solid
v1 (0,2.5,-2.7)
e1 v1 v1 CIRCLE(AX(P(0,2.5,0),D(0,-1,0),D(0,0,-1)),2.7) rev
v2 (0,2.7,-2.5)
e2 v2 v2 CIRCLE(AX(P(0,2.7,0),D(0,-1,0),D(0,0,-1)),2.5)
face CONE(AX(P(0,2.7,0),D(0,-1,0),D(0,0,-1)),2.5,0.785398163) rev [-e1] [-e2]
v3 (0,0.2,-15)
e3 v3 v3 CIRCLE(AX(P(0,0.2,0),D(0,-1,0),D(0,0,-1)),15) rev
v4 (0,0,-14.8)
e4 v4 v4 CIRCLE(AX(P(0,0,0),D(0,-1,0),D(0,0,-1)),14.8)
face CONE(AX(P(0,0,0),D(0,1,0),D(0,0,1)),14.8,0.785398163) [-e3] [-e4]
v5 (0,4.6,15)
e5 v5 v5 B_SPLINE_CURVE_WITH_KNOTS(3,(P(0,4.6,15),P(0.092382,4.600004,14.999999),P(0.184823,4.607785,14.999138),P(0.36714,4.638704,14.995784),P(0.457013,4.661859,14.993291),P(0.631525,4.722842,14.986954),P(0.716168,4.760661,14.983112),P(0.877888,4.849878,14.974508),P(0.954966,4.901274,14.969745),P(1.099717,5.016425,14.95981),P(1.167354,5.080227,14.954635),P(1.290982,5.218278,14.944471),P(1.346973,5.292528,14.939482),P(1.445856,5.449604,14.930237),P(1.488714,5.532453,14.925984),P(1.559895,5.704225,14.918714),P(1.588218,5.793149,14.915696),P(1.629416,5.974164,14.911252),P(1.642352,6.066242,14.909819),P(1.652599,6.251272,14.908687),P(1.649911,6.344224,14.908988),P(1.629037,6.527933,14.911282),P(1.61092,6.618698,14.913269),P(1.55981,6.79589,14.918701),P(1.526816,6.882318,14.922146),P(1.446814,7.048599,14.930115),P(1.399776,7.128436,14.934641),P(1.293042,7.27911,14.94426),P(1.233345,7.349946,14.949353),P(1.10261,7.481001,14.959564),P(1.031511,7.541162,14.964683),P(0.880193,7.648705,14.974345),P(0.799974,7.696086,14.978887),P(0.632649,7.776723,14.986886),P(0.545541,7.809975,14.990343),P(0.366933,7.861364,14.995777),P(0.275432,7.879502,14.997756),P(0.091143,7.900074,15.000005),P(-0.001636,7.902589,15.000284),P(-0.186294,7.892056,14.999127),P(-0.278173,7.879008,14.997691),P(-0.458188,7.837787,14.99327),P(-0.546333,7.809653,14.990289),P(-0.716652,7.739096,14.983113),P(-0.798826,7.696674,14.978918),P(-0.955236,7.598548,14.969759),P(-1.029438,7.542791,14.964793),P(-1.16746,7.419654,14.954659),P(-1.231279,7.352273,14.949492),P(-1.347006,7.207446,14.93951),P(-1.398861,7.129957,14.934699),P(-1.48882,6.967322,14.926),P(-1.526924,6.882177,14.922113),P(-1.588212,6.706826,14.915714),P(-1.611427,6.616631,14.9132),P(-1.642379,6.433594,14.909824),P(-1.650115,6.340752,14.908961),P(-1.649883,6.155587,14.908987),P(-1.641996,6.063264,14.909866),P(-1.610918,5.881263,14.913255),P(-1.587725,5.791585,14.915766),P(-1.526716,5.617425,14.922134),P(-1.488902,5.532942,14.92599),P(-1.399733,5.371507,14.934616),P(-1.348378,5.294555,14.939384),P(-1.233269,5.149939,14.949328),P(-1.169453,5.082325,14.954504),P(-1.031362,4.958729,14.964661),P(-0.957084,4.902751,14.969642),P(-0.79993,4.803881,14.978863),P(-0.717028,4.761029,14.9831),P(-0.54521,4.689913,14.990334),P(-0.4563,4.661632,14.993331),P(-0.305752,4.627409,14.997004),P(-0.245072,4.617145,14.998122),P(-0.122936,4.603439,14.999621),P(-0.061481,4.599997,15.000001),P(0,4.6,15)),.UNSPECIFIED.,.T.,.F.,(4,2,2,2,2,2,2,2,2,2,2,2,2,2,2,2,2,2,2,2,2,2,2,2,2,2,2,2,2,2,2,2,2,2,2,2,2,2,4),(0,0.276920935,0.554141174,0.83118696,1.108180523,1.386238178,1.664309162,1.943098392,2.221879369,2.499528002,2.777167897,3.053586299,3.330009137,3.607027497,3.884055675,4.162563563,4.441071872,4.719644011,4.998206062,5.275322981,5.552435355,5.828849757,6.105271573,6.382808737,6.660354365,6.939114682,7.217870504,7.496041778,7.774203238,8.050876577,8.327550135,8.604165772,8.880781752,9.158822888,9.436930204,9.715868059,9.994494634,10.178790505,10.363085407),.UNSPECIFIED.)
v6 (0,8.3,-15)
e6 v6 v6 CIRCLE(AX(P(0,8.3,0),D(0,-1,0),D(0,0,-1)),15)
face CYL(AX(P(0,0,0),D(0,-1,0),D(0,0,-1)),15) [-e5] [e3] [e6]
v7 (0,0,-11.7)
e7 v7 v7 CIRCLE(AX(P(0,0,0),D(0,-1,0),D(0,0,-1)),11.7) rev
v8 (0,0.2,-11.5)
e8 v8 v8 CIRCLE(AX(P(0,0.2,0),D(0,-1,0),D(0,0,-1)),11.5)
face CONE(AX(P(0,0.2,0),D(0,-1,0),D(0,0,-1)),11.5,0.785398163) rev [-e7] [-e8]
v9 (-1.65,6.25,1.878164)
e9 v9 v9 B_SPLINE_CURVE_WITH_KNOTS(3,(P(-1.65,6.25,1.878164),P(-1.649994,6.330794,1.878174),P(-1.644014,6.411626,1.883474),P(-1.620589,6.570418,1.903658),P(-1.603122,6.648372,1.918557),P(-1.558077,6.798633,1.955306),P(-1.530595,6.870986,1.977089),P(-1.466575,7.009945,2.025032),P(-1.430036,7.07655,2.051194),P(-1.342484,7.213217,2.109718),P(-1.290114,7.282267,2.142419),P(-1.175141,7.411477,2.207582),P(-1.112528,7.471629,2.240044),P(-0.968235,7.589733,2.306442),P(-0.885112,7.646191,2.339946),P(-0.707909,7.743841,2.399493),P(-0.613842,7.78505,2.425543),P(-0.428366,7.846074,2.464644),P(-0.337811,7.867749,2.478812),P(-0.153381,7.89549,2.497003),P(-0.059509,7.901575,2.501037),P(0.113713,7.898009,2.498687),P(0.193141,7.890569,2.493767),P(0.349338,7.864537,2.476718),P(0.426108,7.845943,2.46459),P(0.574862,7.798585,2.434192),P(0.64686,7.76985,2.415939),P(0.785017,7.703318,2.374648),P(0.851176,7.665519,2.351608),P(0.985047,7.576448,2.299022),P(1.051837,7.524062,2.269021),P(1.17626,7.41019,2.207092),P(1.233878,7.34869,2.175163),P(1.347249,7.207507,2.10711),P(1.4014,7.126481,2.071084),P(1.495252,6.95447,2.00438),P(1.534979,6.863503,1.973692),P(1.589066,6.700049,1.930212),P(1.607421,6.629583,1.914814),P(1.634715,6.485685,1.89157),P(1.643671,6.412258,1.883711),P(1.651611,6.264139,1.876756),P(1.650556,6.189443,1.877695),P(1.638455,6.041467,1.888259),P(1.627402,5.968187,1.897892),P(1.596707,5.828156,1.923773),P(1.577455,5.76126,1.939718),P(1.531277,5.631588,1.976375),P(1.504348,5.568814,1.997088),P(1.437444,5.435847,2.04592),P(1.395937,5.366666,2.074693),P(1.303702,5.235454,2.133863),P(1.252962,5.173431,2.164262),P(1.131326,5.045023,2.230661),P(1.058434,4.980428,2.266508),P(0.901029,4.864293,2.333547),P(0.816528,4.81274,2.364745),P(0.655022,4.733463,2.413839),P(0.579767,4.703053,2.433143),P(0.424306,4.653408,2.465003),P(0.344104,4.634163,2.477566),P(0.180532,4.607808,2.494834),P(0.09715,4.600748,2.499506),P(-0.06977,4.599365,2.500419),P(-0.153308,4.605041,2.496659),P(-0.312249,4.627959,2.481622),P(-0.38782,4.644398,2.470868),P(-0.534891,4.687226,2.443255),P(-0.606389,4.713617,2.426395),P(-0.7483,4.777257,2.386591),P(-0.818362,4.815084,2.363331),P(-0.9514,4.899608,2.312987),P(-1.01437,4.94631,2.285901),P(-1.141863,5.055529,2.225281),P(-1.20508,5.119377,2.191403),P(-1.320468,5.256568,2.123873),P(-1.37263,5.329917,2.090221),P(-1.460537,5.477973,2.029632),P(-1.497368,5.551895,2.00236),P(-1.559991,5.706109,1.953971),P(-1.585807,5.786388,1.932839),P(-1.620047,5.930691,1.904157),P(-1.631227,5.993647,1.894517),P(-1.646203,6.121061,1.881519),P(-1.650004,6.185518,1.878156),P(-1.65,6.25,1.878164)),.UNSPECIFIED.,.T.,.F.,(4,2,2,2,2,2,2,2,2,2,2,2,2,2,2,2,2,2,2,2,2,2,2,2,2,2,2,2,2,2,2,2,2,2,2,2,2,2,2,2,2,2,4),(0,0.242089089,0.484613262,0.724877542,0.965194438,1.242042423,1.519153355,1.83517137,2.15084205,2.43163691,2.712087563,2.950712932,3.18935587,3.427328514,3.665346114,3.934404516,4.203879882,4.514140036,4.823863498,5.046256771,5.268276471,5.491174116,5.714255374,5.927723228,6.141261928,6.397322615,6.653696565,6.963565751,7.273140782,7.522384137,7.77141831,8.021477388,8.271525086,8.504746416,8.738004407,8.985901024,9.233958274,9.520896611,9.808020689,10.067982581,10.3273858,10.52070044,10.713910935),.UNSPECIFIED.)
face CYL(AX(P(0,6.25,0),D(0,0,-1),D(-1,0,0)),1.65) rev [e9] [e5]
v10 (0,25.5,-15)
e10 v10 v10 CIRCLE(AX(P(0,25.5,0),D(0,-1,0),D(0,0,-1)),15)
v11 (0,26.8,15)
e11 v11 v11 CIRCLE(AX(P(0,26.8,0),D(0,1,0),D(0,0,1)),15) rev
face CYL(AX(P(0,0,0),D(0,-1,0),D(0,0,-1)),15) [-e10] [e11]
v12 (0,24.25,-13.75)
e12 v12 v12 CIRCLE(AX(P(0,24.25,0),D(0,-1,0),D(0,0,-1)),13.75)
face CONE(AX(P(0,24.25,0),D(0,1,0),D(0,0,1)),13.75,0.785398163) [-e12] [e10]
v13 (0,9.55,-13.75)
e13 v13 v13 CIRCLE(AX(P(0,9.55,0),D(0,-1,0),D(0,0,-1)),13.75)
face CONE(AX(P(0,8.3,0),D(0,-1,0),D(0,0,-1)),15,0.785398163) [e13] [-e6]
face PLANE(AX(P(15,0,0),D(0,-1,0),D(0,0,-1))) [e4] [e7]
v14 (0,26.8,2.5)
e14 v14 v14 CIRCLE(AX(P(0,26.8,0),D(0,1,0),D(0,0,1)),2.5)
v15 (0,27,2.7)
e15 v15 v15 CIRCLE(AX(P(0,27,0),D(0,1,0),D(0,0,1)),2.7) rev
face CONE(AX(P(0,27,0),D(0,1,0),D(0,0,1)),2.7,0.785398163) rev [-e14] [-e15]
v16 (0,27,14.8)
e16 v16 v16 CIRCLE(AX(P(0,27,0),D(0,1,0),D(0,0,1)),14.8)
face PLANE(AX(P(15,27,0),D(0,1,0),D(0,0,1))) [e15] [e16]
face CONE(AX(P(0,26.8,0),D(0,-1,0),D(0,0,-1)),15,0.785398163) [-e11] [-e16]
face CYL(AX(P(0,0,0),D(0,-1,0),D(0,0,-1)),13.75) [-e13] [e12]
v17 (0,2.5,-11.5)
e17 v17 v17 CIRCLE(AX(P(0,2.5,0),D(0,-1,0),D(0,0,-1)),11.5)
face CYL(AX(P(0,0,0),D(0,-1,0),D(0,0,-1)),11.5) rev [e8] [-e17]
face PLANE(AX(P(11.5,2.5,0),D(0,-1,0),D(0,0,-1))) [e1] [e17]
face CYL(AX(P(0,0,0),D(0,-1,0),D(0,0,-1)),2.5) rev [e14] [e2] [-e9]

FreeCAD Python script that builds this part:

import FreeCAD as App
import Part
import Sketcher
from FreeCAD import Vector
Q = App.Units.Quantity


def edges_at(feature, points):
    """Names of the edges that pass closest to the given points."""
    edges = feature.Shape.Edges
    near = lambda p: min(range(len(edges)), key=lambda i: edges[i].distToShape(Part.Vertex(*p))[0])
    return sorted({f"Edge{near(p) + 1}" for p in points})

doc = App.newDocument("Part")
body = doc.addObject("PartDesign::Body", "Body")

sketch1 = doc.addObject("Sketcher::SketchObject", "Sketch")
body.addObject(sketch1)
sketch1.AttachmentSupport = (doc.XY_Plane, [""])
sketch1.MapMode = "FlatFace"
sketch1.addGeometry(Part.LineSegment(Vector(13.75, 9.55, 0), Vector(13.75, 24.25, 0)), False)
sketch1.addGeometry(Part.LineSegment(Vector(13.75, 24.25, 0), Vector(15, 25.5, 0)), False)
sketch1.addGeometry(Part.LineSegment(Vector(15, 25.5, 0), Vector(15, 27, 0)), False)
sketch1.addGeometry(Part.LineSegment(Vector(15, 27, 0), Vector(2.5, 27, 0)), False)
sketch1.addGeometry(Part.LineSegment(Vector(2.5, 27, 0), Vector(2.5, 2.5, 0)), False)
sketch1.addGeometry(Part.LineSegment(Vector(2.5, 2.5, 0), Vector(11.5, 2.5, 0)), False)
sketch1.addGeometry(Part.LineSegment(Vector(11.5, 2.5, 0), Vector(11.5, 0, 0)), False)
sketch1.addGeometry(Part.LineSegment(Vector(11.5, 0, 0), Vector(15, 0, 0)), False)
sketch1.addGeometry(Part.LineSegment(Vector(15, 0, 0), Vector(15, 8.3, 0)), False)
sketch1.addGeometry(Part.LineSegment(Vector(15, 8.3, 0), Vector(13.75, 9.55, 0)), False)
sketch1.addConstraint(Sketcher.Constraint("Coincident", 0, 2, 1, 1))
sketch1.addConstraint(Sketcher.Constraint("Coincident", 1, 2, 2, 1))
sketch1.addConstraint(Sketcher.Constraint("Coincident", 2, 2, 3, 1))
sketch1.addConstraint(Sketcher.Constraint("Coincident", 3, 2, 4, 1))
sketch1.addConstraint(Sketcher.Constraint("Coincident", 4, 2, 5, 1))
sketch1.addConstraint(Sketcher.Constraint("Coincident", 5, 2, 6, 1))
sketch1.addConstraint(Sketcher.Constraint("Coincident", 6, 2, 7, 1))
sketch1.addConstraint(Sketcher.Constraint("Coincident", 7, 2, 8, 1))
sketch1.addConstraint(Sketcher.Constraint("Coincident", 8, 2, 9, 1))
sketch1.addConstraint(Sketcher.Constraint("Coincident", 9, 2, 0, 1))
sketch1.addConstraint(Sketcher.Constraint("Vertical", 0))
sketch1.addConstraint(Sketcher.Constraint("Vertical", 2))
sketch1.addConstraint(Sketcher.Constraint("Horizontal", 3))
sketch1.addConstraint(Sketcher.Constraint("Vertical", 4))
sketch1.addConstraint(Sketcher.Constraint("Horizontal", 5))
sketch1.addConstraint(Sketcher.Constraint("Vertical", 6))
sketch1.addConstraint(Sketcher.Constraint("Horizontal", 7))
sketch1.addConstraint(Sketcher.Constraint("Vertical", 8))
sketch1.addConstraint(Sketcher.Constraint("PointOnObject", 6, 2, -1))
sketch1.addConstraint(Sketcher.Constraint("Perpendicular", 1, 9))
sketch1.addConstraint(Sketcher.Constraint("Vertical", 2, 2, 7, 2))
sketch1.addConstraint(Sketcher.Constraint("Equal", 1, 9))
sketch1.addConstraint(Sketcher.Constraint("DistanceX", 5, 1, 5, 2, Q("9 mm")))
sketch1.addConstraint(Sketcher.Constraint("DistanceX", 3, 2, 3, 1, Q("12.5 mm")))
sketch1.addConstraint(Sketcher.Constraint("DistanceY", 0, 1, 0, 2, Q("14.7 mm")))
sketch1.addConstraint(Sketcher.Constraint("DistanceY", 2, 1, 2, 2, Q("1.5 mm")))
sketch1.addConstraint(Sketcher.Constraint("DistanceY", 4, 2, 4, 1, Q("24.5 mm")))
sketch1.addConstraint(Sketcher.Constraint("DistanceY", 6, 2, 6, 1, Q("2.5 mm")))
sketch1.addConstraint(Sketcher.Constraint("DistanceY", 8, 1, 8, 2, Q("8.3 mm")))
sketch1.addConstraint(Sketcher.Constraint("DistanceX", -1, 1, 1, 2, Q("15 mm")))
revolution = doc.addObject("PartDesign::Revolution", "Revolution")
body.addObject(revolution)
revolution.Profile = sketch1
revolution.ReferenceAxis = (sketch1, ["V_Axis"])
revolution.Angle = 360

sketch2 = doc.addObject("Sketcher::SketchObject", "Sketch001")
body.addObject(sketch2)
sketch2.AttachmentSupport = (doc.YZ_Plane, [""])
sketch2.MapMode = "FlatFace"
sketch2.addGeometry(Part.LineSegment(Vector(6.25, 15, 0), Vector(6.25, 0, 0)), False)
sketch2.addGeometry(Part.LineSegment(Vector(6.25, 0, 0), Vector(7.9, 0, 0)), False)
sketch2.addGeometry(Part.LineSegment(Vector(7.9, 0, 0), Vector(7.9, 15, 0)), False)
sketch2.addGeometry(Part.LineSegment(Vector(7.9, 15, 0), Vector(6.25, 15, 0)), False)
sketch2.addGeometry(Part.LineSegment(Vector(6.25, 0, 0), Vector(6.25, 15, 0)), True)
sketch2.addConstraint(Sketcher.Constraint("Coincident", 0, 2, 1, 1))
sketch2.addConstraint(Sketcher.Constraint("Coincident", 1, 2, 2, 1))
sketch2.addConstraint(Sketcher.Constraint("Coincident", 2, 2, 3, 1))
sketch2.addConstraint(Sketcher.Constraint("Coincident", 3, 2, 0, 1))
sketch2.addConstraint(Sketcher.Constraint("Vertical", 0))
sketch2.addConstraint(Sketcher.Constraint("Horizontal", 1))
sketch2.addConstraint(Sketcher.Constraint("Vertical", 2))
sketch2.addConstraint(Sketcher.Constraint("Horizontal", 3))
sketch2.addConstraint(Sketcher.Constraint("Vertical", 4))
sketch2.addConstraint(Sketcher.Constraint("Coincident", 4, 1, 0, 2))
sketch2.addConstraint(Sketcher.Constraint("PointOnObject", 0, 2, -1))
sketch2.addConstraint(Sketcher.Constraint("Horizontal", 2, 2, 4, 2))
sketch2.addConstraint(Sketcher.Constraint("DistanceY", 0, 2, 0, 1, Q("15 mm")))
sketch2.addConstraint(Sketcher.Constraint("DistanceX", 1, 1, 1, 2, Q("1.65 mm")))
sketch2.addConstraint(Sketcher.Constraint("DistanceX", -1, 1, 1, 2, Q("7.9 mm")))
groove = doc.addObject("PartDesign::Groove", "Groove")
body.addObject(groove)
groove.Profile = sketch2
groove.ReferenceAxis = (sketch2, ["Axis0"])
groove.Angle = 360
doc.recompute()

chamfer = doc.addObject("PartDesign::Chamfer", "Chamfer")
body.addObject(chamfer)
chamfer.Base = (groove, edges_at(groove, [
    (0, 0, 15),
    (0, 0, 11.5),
    (0, 2.5, 2.5),
    (0, 27, 2.5),
    (0, 27, 15),
]))
chamfer.Size = 0.2

doc.recompute()
